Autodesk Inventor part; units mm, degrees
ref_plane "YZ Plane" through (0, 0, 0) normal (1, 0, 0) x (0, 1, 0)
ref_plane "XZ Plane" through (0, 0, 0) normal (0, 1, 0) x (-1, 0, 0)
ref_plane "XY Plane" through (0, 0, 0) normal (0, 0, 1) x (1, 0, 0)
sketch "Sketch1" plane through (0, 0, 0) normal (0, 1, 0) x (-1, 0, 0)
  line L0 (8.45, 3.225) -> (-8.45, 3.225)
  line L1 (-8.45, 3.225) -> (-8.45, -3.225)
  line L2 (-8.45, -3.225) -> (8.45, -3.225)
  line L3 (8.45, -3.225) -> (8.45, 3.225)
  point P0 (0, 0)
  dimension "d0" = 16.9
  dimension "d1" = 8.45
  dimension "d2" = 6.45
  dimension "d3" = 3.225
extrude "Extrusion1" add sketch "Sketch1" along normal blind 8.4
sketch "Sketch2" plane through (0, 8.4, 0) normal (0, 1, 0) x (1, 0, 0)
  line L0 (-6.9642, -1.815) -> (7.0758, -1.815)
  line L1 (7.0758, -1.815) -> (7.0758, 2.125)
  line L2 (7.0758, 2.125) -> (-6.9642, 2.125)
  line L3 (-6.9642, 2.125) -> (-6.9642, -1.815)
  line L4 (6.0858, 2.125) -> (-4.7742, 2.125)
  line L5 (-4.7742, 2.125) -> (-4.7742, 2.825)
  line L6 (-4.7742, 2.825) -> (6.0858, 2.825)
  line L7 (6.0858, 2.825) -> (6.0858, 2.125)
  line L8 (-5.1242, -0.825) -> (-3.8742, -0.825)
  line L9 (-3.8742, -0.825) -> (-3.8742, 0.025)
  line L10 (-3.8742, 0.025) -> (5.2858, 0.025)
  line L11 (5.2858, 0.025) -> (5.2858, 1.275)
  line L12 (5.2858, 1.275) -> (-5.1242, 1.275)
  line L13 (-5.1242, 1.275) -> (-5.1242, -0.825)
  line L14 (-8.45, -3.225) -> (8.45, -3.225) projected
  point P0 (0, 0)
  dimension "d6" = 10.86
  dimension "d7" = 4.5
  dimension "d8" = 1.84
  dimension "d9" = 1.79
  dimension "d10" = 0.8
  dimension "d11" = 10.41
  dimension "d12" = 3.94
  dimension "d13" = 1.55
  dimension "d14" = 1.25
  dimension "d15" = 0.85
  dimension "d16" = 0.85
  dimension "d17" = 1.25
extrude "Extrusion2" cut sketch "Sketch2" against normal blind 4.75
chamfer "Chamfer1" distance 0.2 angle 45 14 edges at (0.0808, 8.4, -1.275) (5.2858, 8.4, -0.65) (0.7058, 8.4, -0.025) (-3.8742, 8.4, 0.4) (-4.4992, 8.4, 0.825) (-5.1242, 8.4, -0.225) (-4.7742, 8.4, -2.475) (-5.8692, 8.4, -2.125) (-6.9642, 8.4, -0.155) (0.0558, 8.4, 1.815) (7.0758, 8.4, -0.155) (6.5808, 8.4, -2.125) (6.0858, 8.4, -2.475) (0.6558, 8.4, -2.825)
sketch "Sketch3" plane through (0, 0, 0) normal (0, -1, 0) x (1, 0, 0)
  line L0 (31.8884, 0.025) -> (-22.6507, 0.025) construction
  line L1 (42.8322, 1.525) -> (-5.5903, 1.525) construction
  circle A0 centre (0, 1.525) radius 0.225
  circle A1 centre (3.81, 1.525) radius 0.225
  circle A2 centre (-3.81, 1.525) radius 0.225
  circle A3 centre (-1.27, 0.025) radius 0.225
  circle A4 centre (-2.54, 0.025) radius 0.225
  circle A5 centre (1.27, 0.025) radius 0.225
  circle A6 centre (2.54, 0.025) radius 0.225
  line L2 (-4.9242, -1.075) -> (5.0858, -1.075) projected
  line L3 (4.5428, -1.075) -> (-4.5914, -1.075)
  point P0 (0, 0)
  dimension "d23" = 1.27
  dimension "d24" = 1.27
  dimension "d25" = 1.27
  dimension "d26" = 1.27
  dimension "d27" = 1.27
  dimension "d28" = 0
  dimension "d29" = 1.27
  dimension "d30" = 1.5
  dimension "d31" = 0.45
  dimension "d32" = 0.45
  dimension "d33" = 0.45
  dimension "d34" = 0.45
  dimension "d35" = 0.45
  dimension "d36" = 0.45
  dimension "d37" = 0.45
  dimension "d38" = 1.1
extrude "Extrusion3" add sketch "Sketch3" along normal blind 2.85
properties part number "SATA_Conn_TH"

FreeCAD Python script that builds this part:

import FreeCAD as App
import Part
import Sketcher
from FreeCAD import Vector


def edges_at(feature, points):
    """Names of the edges that pass closest to the given points."""
    edges = feature.Shape.Edges
    near = lambda p: min(range(len(edges)), key=lambda i: edges[i].distToShape(Part.Vertex(*p))[0])
    return sorted({f"Edge{near(p) + 1}" for p in points})


def add_polygon(sketch, points):
    """Adds a closed chain of lines whose ends are joined by coincident constraints."""
    first, n = sketch.GeometryCount, len(points)
    for a, b in zip(points, points[1:] + points[:1]):
        sketch.addGeometry(Part.LineSegment(App.Vector(*a, 0), App.Vector(*b, 0)), False)
    for i in range(n):
        sketch.addConstraint(Sketcher.Constraint("Coincident", first + i, 2, first + (i + 1) % n, 1))

doc = App.newDocument("Part")
params = doc.addObject("Spreadsheet::Sheet", "Params")
for row, (alias, value) in enumerate([
    ("sketch1_width", "16.9 mm"),
    ("sketch1_height", "6.45 mm"),
    ("pad1_length", "8.4 mm"),
    ("sketch2_width", "10.86 mm"),
    ("sketch2_width2", "1.25 mm"),
    ("sketch2_width3", "10.41 mm"),
    ("sketch2_height", "3.94 mm"),
    ("sketch2_height2", "0.85 mm"),
    ("pocket1_length", "4.75 mm"),
    ("chamfer_size", "0.2 mm"),
    ("sketch3_diameter", "0.45 mm"),
    ("pad2_length", "2.85 mm"),
], start=1):
    params.set(f"A{row}", alias)
    params.set(f"B{row}", "=" + value)
    params.setAlias(f"B{row}", alias)

body = doc.addObject("PartDesign::Body", "Body")

# Sketch on XZ plane
sketch1 = body.newObject("Sketcher::SketchObject", "Sketch")
sketch1.AttachmentSupport = (doc.getObject("XZ_Plane"), [""])
sketch1.MapMode = "FlatFace"
add_polygon(sketch1, [(-8, -3), (-8, 3), (8, 3), (8, -3)])  # lines 0-3
sketch1.addConstraint([
    Sketcher.Constraint("Vertical", 0),
    Sketcher.Constraint("Horizontal", 1),
    Sketcher.Constraint("Vertical", 2),
    Sketcher.Constraint("Horizontal", 3),
    Sketcher.Constraint("Symmetric", 0, 2, 2, 2, -1, 1),
    Sketcher.Constraint("DistanceX", 1, 1, 1, 2, 16.9),
    Sketcher.Constraint("DistanceY", 0, 1, 0, 2, 6.45),
])
sketch1.setExpression("Constraints[9]", "Params.sketch1_width")
sketch1.setExpression("Constraints[10]", "Params.sketch1_height")
pad1 = body.newObject("PartDesign::Pad", "Pad")
pad1.Profile = sketch1
pad1.setExpression("Length", "Params.pad1_length")
pad1.Reversed = True

# Sketch on XZ plane
sketch2 = body.newObject("Sketcher::SketchObject", "Sketch001")
sketch2.AttachmentSupport = (doc.getObject("XZ_Plane"), [""])
sketch2.MapMode = "FlatFace"
sketch2.AttachmentOffset = App.Placement(Vector(0, 0, -8.4), App.Rotation())
add_polygon(sketch2, [(-7, -2.1), (-7, 1.8), (7.1, 1.8), (7.1, -2.1), (6.1, -2.1), (6.1, -2.8), (-4.8, -2.8), (-4.8, -2.1)])  # lines 0-7
add_polygon(sketch2, [(-3.9, 0.8), (-5.1, 0.8), (-5.1, -1.3), (5.3, -1.3), (5.3, 0), (-3.9, 0)])  # lines 8-13
sketch2.addConstraint([
    Sketcher.Constraint("Vertical", 0),
    Sketcher.Constraint("Horizontal", 1),
    Sketcher.Constraint("Vertical", 2),
    Sketcher.Constraint("Horizontal", 3),
    Sketcher.Constraint("Vertical", 4),
    Sketcher.Constraint("Horizontal", 5),
    Sketcher.Constraint("Vertical", 6),
    Sketcher.Constraint("Horizontal", 7),
    Sketcher.Constraint("Horizontal", 8),
    Sketcher.Constraint("Vertical", 9),
    Sketcher.Constraint("Horizontal", 10),
    Sketcher.Constraint("Vertical", 11),
    Sketcher.Constraint("Horizontal", 12),
    Sketcher.Constraint("Vertical", 13),
    Sketcher.Constraint("Horizontal", 3, 2, 6, 2),
    Sketcher.Constraint("Equal", 8, 11),
    Sketcher.Constraint("DistanceX", 5, 2, 5, 1, 10.86),
    Sketcher.Constraint("DistanceX", 8, 2, 8, 1, 1.25),
    Sketcher.Constraint("DistanceX", 10, 1, 10, 2, 10.41),
    Sketcher.Constraint("DistanceY", 0, 1, 0, 2, 3.94),
    Sketcher.Constraint("DistanceY", 13, 1, 13, 2, 0.85),
    Sketcher.Constraint("DistanceX", 10, 2, 3, 2, 0.8),
    Sketcher.Constraint("DistanceX", 0, 2, 8, 2, 1.84),
    Sketcher.Constraint("DistanceY", 6, 2, 9, 2, 0.85),
    Sketcher.Constraint("DistanceY", 5, 2, 9, 2, 1.55),
    Sketcher.Constraint("DistanceX", 10, 2, 2, 2, 1.79),
    Sketcher.Constraint("DistanceY", -1, 1, 0, 2, 1.815),
    Sketcher.Constraint("DistanceX", 0, 2, -1, 1, 6.9642),
])
sketch2.setExpression("Constraints[30]", "Params.sketch2_width")
sketch2.setExpression("Constraints[31]", "Params.sketch2_width2")
sketch2.setExpression("Constraints[32]", "Params.sketch2_width3")
sketch2.setExpression("Constraints[33]", "Params.sketch2_height")
sketch2.setExpression("Constraints[34]", "Params.sketch2_height2")
pocket1 = body.newObject("PartDesign::Pocket", "Pocket")
pocket1.Profile = sketch2
pocket1.setExpression("Length", "Params.pocket1_length")
pocket1.Reversed = True
doc.recompute()

chamfer = body.newObject("PartDesign::Chamfer", "Chamfer")
chamfer.Base = (pocket1, edges_at(pocket1, [
    (0.081, 8.4, -1.275),
    (5.286, 8.4, -0.65),
    (0.706, 8.4, -0.025),
    (-3.874, 8.4, 0.4),
    (-4.499, 8.4, 0.825),
    (-5.124, 8.4, -0.225),
    (-4.774, 8.4, -2.475),
    (-5.869, 8.4, -2.125),
    (-6.964, 8.4, -0.155),
    (0.056, 8.4, 1.815),
    (7.076, 8.4, -0.155),
    (6.581, 8.4, -2.125),
    (6.086, 8.4, -2.475),
    (0.656, 8.4, -2.825),
]))
chamfer.setExpression("Size", "Params.chamfer_size")

# Sketch on XZ plane
sketch3 = body.newObject("Sketcher::SketchObject", "Sketch002")
sketch3.AttachmentSupport = (doc.getObject("XZ_Plane"), [""])
sketch3.MapMode = "FlatFace"
sketch3.addGeometry([
    Part.Circle(Vector(0, 1.52, 0), Vector(0, 0, 1), 0.23),  # 0
    Part.Circle(Vector(3.81, 1.52, 0), Vector(0, 0, 1), 0.23),  # 1
    Part.Circle(Vector(-3.81, 1.52, 0), Vector(0, 0, 1), 0.23),  # 2
    Part.Circle(Vector(-1.27, 0.03, 0), Vector(0, 0, 1), 0.23),  # 3
    Part.Circle(Vector(-2.54, 0.03, 0), Vector(0, 0, 1), 0.23),  # 4
    Part.Circle(Vector(1.27, 0.03, 0), Vector(0, 0, 1), 0.23),  # 5
    Part.Circle(Vector(2.54, 0.03, 0), Vector(0, 0, 1), 0.23),  # 6
], False)
sketch3.addConstraint([
    Sketcher.Constraint("Equal", 0, 1),
    Sketcher.Constraint("Equal", 1, 2),
    Sketcher.Constraint("Equal", 2, 3),
    Sketcher.Constraint("Equal", 3, 4),
    Sketcher.Constraint("Equal", 4, 5),
    Sketcher.Constraint("Equal", 5, 6),
    Sketcher.Constraint("Symmetric", 1, 3, 2, 3, -2),
    Sketcher.Constraint("Symmetric", 3, 3, 5, 3, -2),
    Sketcher.Constraint("Symmetric", 4, 3, 6, 3, -2),
    Sketcher.Constraint("PointOnObject", 0, 3, -2),
    Sketcher.Constraint("Horizontal", 0, 3, 1, 3),
    Sketcher.Constraint("Horizontal", 3, 3, 4, 3),
    Sketcher.Constraint("Diameter", 0, 0.45),
    Sketcher.Constraint("DistanceY", 3, 3, 0, 3, 1.5),
    Sketcher.Constraint("DistanceX", 3, 3, -1, 1, 1.27),
    Sketcher.Constraint("DistanceX", 4, 3, 3, 3, 1.27),
    Sketcher.Constraint("DistanceX", 2, 3, 4, 3, 1.27),
    Sketcher.Constraint("DistanceY", -1, 1, 0, 3, 1.525),
])
sketch3.setExpression("Constraints[12]", "Params.sketch3_diameter")
pad2 = body.newObject("PartDesign::Pad", "Pad001")
pad2.Profile = sketch3
pad2.setExpression("Length", "Params.pad2_length")

doc.recompute()
